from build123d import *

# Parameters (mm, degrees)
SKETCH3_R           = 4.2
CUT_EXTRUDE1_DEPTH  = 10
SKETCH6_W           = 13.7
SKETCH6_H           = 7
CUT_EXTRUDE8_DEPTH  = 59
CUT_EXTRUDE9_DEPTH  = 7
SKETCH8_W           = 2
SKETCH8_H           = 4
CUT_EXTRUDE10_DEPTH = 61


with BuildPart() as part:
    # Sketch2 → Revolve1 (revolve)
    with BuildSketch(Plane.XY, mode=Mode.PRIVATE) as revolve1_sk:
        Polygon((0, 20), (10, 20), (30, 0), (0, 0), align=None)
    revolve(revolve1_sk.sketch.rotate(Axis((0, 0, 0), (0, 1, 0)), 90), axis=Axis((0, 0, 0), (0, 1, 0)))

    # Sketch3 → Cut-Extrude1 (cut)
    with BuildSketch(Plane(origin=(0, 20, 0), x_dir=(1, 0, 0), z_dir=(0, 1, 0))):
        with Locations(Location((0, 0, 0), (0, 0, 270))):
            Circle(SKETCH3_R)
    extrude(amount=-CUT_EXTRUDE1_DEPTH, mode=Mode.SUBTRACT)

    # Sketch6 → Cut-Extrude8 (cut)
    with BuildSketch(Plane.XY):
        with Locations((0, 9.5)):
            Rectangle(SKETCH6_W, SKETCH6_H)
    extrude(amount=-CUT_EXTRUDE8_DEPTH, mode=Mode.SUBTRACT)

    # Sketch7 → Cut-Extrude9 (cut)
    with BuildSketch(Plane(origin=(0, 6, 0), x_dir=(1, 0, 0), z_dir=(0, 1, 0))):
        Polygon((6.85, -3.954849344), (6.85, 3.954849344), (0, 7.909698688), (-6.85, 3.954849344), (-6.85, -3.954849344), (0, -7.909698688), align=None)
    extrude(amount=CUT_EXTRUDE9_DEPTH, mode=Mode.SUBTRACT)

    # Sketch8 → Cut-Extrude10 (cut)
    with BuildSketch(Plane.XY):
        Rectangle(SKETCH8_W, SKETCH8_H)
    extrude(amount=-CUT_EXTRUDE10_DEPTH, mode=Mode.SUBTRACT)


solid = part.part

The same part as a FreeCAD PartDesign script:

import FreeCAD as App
import Part
import Sketcher

V = App.Vector
Q = App.Units.Quantity


def add_polygon(sketch, points):
    """Adds a closed chain of lines whose ends are joined by coincident constraints."""
    first, n = sketch.GeometryCount, len(points)
    for a, b in zip(points, points[1:] + points[:1]):
        sketch.addGeometry(Part.LineSegment(App.Vector(*a, 0), App.Vector(*b, 0)), False)
    for i in range(n):
        sketch.addConstraint(Sketcher.Constraint("Coincident", first + i, 2, first + (i + 1) % n, 1))

doc = App.newDocument("Part")
params = doc.addObject("Spreadsheet::Sheet", "Params")
for row, (alias, value) in enumerate([
    ("sketch1_width", "10 mm"),
    ("sketch1_width2", "30 mm"),
    ("sketch1_height", "20 mm"),
    ("revolution_angle", "360 deg"),
    ("sketch2_diameter", "8.4 mm"),
    ("pocket1_length", "10 mm"),
    ("sketch3_height", "7 mm"),
    ("sketch3_width", "13.7 mm"),
    ("pocket2_length", "59 mm"),
    ("pocket3_length", "7 mm"),
    ("sketch5_width", "2 mm"),
    ("sketch5_height", "4 mm"),
    ("pocket4_length", "61 mm"),
], start=1):
    params.set(f"A{row}", alias)
    params.set(f"B{row}", "=" + value)
    params.setAlias(f"B{row}", alias)

body = doc.addObject("PartDesign::Body", "Body")

# Sketch on XY plane
sketch1 = body.newObject("Sketcher::SketchObject", "Sketch")
sketch1.AttachmentSupport = (doc.getObject("XY_Plane"), [""])
sketch1.MapMode = "FlatFace"
add_polygon(sketch1, [(10, 20), (0, 20), (0, 0), (30, 0)])  # lines 0-3
sketch1.addConstraint(Sketcher.Constraint("Horizontal", 0))
sketch1.addConstraint(Sketcher.Constraint("Vertical", 1))
sketch1.addConstraint(Sketcher.Constraint("Horizontal", 2))
sketch1.addConstraint(Sketcher.Constraint("Coincident", 1, 2, -1, 1))
sketch1.addConstraint(Sketcher.Constraint("DistanceX", 0, 2, 0, 1, Q("10 mm")))
sketch1.addConstraint(Sketcher.Constraint("DistanceX", 2, 1, 2, 2, Q("30 mm")))
sketch1.addConstraint(Sketcher.Constraint("DistanceY", 1, 2, 1, 1, Q("20 mm")))
sketch1.setExpression("Constraints[8]", "Params.sketch1_width")
sketch1.setExpression("Constraints[9]", "Params.sketch1_width2")
sketch1.setExpression("Constraints[10]", "Params.sketch1_height")
revolution = body.newObject("PartDesign::Revolution", "Revolution")
revolution.Profile = sketch1
revolution.ReferenceAxis = (sketch1, ["V_Axis"])
revolution.setExpression("Angle", "Params.revolution_angle")

# Sketch on XZ plane
sketch2 = body.newObject("Sketcher::SketchObject", "Sketch001")
sketch2.AttachmentSupport = (doc.getObject("XZ_Plane"), [""])
sketch2.MapMode = "FlatFace"
sketch2.AttachmentOffset = App.Placement(V(0, 0, -20), App.Rotation())
sketch2.addGeometry(Part.Circle(V(0, 0, 0), V(0, 0, 1), 4.2), False)
sketch2.addConstraint(Sketcher.Constraint("Coincident", 0, 3, -1, 1))
sketch2.addConstraint(Sketcher.Constraint("Diameter", 0, Q("8.4 mm")))
sketch2.setExpression("Constraints[1]", "Params.sketch2_diameter")
pocket1 = body.newObject("PartDesign::Pocket", "Pocket")
pocket1.Profile = sketch2
pocket1.setExpression("Length", "Params.pocket1_length")
pocket1.Reversed = True

# Sketch on XY plane
sketch3 = body.newObject("Sketcher::SketchObject", "Sketch002")
sketch3.AttachmentSupport = (doc.getObject("XY_Plane"), [""])
sketch3.MapMode = "FlatFace"
add_polygon(sketch3, [(-7, 13), (-7, 6), (7, 6), (7, 13)])  # lines 0-3
sketch3.addConstraint(Sketcher.Constraint("Vertical", 0))
sketch3.addConstraint(Sketcher.Constraint("Horizontal", 1))
sketch3.addConstraint(Sketcher.Constraint("Vertical", 2))
sketch3.addConstraint(Sketcher.Constraint("Horizontal", 3))
sketch3.addConstraint(Sketcher.Constraint("DistanceY", 0, 2, 0, 1, Q("7 mm")))
sketch3.addConstraint(Sketcher.Constraint("DistanceX", 1, 1, 1, 2, Q("13.7 mm")))
sketch3.addConstraint(Sketcher.Constraint("DistanceY", -1, 1, 0, 2, Q("6 mm")))
sketch3.addConstraint(Sketcher.Constraint("DistanceX", 0, 2, -1, 1, Q("6.85 mm")))
sketch3.setExpression("Constraints[8]", "Params.sketch3_height")
sketch3.setExpression("Constraints[9]", "Params.sketch3_width")
pocket2 = body.newObject("PartDesign::Pocket", "Pocket001")
pocket2.Profile = sketch3
pocket2.setExpression("Length", "Params.pocket2_length")

# Sketch on XZ plane
sketch4 = body.newObject("Sketcher::SketchObject", "Sketch003")
sketch4.AttachmentSupport = (doc.getObject("XZ_Plane"), [""])
sketch4.MapMode = "FlatFace"
sketch4.AttachmentOffset = App.Placement(V(0, 0, -6), App.Rotation())
add_polygon(sketch4, [(7, 4), (7, -4), (0, -8), (-7, -4), (-7, 4), (0, 8)])  # lines 0-5
sketch4.addConstraint(Sketcher.Constraint("Vertical", 0))
sketch4.addConstraint(Sketcher.Constraint("Vertical", 3))
sketch4.addConstraint(Sketcher.Constraint("Symmetric", 0, 2, 3, 2, -1, 1))
sketch4.addConstraint(Sketcher.Constraint("Symmetric", 1, 2, 4, 2, -1, 1))
sketch4.addConstraint(Sketcher.Constraint("PointOnObject", 1, 2, -2))
sketch4.addConstraint(Sketcher.Constraint("Parallel", 2, 5))
sketch4.addConstraint(Sketcher.Constraint("Horizontal", 0, 2, 2, 2))
sketch4.addConstraint(Sketcher.Constraint("Angle", 1, Q("-150 deg")))
sketch4.addConstraint(Sketcher.Constraint("DistanceX", 2, 2, 0, 2, Q("13.7 mm")))
sketch4.addConstraint(Sketcher.Constraint("DistanceY", 0, 2, 0, 1, Q("7.909699 mm")))
pocket3 = body.newObject("PartDesign::Pocket", "Pocket002")
pocket3.Profile = sketch4
pocket3.setExpression("Length", "Params.pocket3_length")

# Sketch on XY plane
sketch5 = body.newObject("Sketcher::SketchObject", "Sketch004")
sketch5.AttachmentSupport = (doc.getObject("XY_Plane"), [""])
sketch5.MapMode = "FlatFace"
add_polygon(sketch5, [(-1, 2), (-1, -2), (1, -2), (1, 2)])  # lines 0-3
sketch5.addConstraint(Sketcher.Constraint("Vertical", 0))
sketch5.addConstraint(Sketcher.Constraint("Horizontal", 1))
sketch5.addConstraint(Sketcher.Constraint("Vertical", 2))
sketch5.addConstraint(Sketcher.Constraint("Horizontal", 3))
sketch5.addConstraint(Sketcher.Constraint("Symmetric", 0, 2, 2, 2, -1, 1))
sketch5.addConstraint(Sketcher.Constraint("DistanceX", 1, 1, 1, 2, Q("2 mm")))
sketch5.addConstraint(Sketcher.Constraint("DistanceY", 0, 2, 0, 1, Q("4 mm")))
sketch5.setExpression("Constraints[9]", "Params.sketch5_width")
sketch5.setExpression("Constraints[10]", "Params.sketch5_height")
pocket4 = body.newObject("PartDesign::Pocket", "Pocket003")
pocket4.Profile = sketch5
pocket4.setExpression("Length", "Params.pocket4_length")

doc.recompute()
